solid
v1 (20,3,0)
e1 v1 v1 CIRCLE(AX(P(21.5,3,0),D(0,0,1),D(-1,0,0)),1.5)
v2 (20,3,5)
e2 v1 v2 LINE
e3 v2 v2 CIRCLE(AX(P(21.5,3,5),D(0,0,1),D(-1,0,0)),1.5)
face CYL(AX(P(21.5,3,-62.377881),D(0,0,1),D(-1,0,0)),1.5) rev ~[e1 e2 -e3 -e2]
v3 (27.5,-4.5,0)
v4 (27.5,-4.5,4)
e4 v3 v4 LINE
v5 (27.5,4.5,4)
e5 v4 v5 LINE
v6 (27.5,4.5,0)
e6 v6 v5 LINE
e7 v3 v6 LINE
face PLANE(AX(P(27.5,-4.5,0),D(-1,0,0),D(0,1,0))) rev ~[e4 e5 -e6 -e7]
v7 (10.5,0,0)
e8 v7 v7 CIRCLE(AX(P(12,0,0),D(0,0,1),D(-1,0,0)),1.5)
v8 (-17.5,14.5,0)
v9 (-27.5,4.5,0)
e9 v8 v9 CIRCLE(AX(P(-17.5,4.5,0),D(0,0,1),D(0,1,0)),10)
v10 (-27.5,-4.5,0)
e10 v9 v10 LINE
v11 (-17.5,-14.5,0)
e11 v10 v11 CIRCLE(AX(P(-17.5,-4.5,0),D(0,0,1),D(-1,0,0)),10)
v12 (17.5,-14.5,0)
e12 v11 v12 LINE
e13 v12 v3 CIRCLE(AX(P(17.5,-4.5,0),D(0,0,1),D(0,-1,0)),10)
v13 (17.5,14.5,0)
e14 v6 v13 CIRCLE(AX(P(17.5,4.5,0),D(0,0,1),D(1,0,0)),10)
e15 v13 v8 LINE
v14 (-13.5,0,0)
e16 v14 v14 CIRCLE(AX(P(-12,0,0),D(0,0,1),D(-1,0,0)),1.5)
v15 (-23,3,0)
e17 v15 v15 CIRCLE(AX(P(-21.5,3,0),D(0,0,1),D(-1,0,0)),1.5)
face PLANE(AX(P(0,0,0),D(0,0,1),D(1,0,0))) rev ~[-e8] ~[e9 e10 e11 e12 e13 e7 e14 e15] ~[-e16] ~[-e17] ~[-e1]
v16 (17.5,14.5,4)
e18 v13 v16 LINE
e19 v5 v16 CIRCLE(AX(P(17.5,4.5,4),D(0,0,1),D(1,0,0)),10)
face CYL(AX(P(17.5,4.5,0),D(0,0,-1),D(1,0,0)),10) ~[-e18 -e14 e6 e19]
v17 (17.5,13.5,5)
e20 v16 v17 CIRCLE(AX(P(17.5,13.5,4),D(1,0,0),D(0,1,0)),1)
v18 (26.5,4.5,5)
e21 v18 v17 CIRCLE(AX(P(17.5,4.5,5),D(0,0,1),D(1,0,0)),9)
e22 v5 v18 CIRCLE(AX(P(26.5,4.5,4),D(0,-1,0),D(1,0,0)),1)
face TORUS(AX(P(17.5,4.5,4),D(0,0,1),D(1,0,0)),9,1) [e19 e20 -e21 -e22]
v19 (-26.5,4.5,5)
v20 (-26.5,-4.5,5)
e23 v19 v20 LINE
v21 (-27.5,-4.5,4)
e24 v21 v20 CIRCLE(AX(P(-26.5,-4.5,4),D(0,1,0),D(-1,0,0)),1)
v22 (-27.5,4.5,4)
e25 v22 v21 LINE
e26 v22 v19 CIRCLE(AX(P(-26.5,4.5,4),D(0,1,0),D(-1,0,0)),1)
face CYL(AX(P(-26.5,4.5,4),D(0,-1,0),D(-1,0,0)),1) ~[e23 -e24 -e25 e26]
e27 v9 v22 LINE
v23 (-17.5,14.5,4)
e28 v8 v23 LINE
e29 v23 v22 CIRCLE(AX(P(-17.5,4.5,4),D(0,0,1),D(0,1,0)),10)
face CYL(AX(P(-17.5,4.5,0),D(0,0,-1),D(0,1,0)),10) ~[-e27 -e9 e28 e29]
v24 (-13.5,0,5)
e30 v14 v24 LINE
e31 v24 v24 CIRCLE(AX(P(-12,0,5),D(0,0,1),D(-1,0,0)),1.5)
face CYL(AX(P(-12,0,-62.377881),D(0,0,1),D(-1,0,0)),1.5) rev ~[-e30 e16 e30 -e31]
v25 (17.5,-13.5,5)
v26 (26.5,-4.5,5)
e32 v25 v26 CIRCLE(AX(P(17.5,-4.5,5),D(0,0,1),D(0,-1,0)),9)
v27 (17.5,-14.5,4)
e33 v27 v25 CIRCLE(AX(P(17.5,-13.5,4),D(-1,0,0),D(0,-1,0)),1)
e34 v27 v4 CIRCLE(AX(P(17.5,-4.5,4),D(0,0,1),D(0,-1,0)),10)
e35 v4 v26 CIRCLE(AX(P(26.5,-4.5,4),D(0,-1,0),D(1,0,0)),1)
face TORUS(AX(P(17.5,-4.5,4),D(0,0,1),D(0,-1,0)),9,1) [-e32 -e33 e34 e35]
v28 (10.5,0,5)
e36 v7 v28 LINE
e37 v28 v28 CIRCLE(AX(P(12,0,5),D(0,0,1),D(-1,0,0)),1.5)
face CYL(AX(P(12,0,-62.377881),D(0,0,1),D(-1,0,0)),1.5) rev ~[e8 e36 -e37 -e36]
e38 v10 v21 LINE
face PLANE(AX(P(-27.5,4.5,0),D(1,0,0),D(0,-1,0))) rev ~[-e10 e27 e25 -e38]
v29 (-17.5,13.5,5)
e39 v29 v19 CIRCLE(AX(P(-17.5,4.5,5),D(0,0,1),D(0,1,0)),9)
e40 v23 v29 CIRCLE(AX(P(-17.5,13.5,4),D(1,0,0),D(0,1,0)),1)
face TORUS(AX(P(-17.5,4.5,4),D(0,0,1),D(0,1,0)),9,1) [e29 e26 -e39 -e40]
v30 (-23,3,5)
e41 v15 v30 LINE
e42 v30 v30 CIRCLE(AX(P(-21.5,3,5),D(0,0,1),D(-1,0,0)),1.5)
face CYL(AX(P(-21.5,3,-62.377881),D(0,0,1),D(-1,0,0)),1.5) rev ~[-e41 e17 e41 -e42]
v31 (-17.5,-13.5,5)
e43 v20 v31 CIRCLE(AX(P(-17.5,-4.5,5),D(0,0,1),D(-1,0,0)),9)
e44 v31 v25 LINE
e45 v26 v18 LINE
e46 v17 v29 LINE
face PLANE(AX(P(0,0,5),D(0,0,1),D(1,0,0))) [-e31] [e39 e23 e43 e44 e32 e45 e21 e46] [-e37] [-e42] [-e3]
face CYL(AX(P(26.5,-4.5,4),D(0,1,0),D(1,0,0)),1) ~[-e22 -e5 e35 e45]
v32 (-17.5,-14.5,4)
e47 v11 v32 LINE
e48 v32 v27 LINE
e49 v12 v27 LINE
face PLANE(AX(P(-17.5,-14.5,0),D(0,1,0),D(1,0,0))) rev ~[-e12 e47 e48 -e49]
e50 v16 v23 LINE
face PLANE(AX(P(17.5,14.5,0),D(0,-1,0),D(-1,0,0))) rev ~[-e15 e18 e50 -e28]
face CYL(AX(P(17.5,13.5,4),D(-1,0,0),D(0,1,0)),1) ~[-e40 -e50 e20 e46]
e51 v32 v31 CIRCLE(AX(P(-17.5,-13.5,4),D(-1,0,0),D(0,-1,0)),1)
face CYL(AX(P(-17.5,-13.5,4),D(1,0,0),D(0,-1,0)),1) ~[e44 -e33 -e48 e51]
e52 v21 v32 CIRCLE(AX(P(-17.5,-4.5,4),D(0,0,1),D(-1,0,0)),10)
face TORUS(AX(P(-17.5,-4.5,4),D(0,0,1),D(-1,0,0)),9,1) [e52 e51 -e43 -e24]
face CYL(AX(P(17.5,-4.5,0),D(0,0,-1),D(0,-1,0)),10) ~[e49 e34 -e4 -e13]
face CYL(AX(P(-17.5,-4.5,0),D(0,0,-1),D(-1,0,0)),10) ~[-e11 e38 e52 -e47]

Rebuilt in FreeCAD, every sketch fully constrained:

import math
import FreeCAD as App
import Part
import Sketcher


def edges_at(feature, points):
    """Names of the edges that pass closest to the given points."""
    edges = feature.Shape.Edges
    near = lambda p: min(range(len(edges)), key=lambda i: edges[i].distToShape(Part.Vertex(*p))[0])
    return sorted({f"Edge{near(p) + 1}" for p in points})

doc = App.newDocument("Part")
body = doc.addObject("PartDesign::Body", "Body")

# Sketch on XY plane
sketch1 = body.newObject("Sketcher::SketchObject", "Sketch")
sketch1.AttachmentSupport = (doc.getObject("XY_Plane"), [""])
sketch1.MapMode = "FlatFace"
sketch1.addGeometry([
    Part.LineSegment(App.Vector(18, 14, 0), App.Vector(-18, 14, 0)),  # 0
    Part.ArcOfCircle(Part.Circle(App.Vector(-18, 4, 0), App.Vector(0, 0, 1), 10), math.radians(90), math.radians(180)),  # 1
    Part.LineSegment(App.Vector(-28, 4, 0), App.Vector(-28, -4, 0)),  # 2
    Part.ArcOfCircle(Part.Circle(App.Vector(-18, -4, 0), App.Vector(0, 0, 1), 10), math.radians(180), math.radians(270)),  # 3
    Part.LineSegment(App.Vector(-18, -14, 0), App.Vector(18, -14, 0)),  # 4
    Part.ArcOfCircle(Part.Circle(App.Vector(18, -4, 0), App.Vector(0, 0, 1), 10), math.radians(-90), math.radians(0)),  # 5
    Part.LineSegment(App.Vector(28, -4, 0), App.Vector(28, 4, 0)),  # 6
    Part.ArcOfCircle(Part.Circle(App.Vector(18, 4, 0), App.Vector(0, 0, 1), 10), math.radians(0), math.radians(90)),  # 7
], False)
sketch1.addConstraint([
    Sketcher.Constraint("Tangent", 0, 2, 1, 1),
    Sketcher.Constraint("Tangent", 1, 2, 2, 1),
    Sketcher.Constraint("Tangent", 2, 2, 3, 1),
    Sketcher.Constraint("Tangent", 3, 2, 4, 1),
    Sketcher.Constraint("Tangent", 4, 2, 5, 1),
    Sketcher.Constraint("Tangent", 5, 2, 6, 1),
    Sketcher.Constraint("Tangent", 6, 2, 7, 1),
    Sketcher.Constraint("Tangent", 7, 2, 0, 1),
    Sketcher.Constraint("Horizontal", 0),
    Sketcher.Constraint("Vertical", 2),
    Sketcher.Constraint("Horizontal", 4),
    Sketcher.Constraint("Vertical", 6),
    Sketcher.Constraint("Equal", 1, 3),
    Sketcher.Constraint("Equal", 3, 5),
    Sketcher.Constraint("Equal", 5, 7),
    Sketcher.Constraint("Symmetric", 1, 3, 5, 3, -1, 1),
    Sketcher.Constraint("Radius", 1, 10.0),
    Sketcher.Constraint("DistanceX", 0, 2, 0, 1, 35.0),
    Sketcher.Constraint("DistanceY", 2, 2, 2, 1, 9.0),
])
pad1 = body.newObject("PartDesign::Pad", "Pad")
pad1.Profile = sketch1
pad1.Length = 5
doc.recompute()

fillet = body.newObject("PartDesign::Fillet", "Fillet")
fillet.Base = (pad1, edges_at(pad1, [
    (0, 14.5, 5),
    (-24.571, 11.571, 5),
    (-27.5, 0, 5),
    (-24.571, -11.571, 5),
    (0, -14.5, 5),
    (24.571, -11.571, 5),
    (27.5, 0, 5),
    (24.571, 11.571, 5),
]))
fillet.Radius = 1

# Sketch on XY plane
sketch2 = body.newObject("Sketcher::SketchObject", "Sketch001")
sketch2.AttachmentSupport = (doc.getObject("XY_Plane"), [""])
sketch2.MapMode = "FlatFace"
sketch2.addGeometry([
    Part.Circle(App.Vector(-21.5, 3, 0), App.Vector(0, 0, 1), 1.5),
    Part.Circle(App.Vector(21.5, 3, 0), App.Vector(0, 0, 1), 1.5),
], False)
sketch2.addConstraint([
    Sketcher.Constraint("Equal", 0, 1),
    Sketcher.Constraint("Symmetric", 0, 3, 1, 3, -2),
    Sketcher.Constraint("Diameter", 0, 3.0),
    Sketcher.Constraint("DistanceY", -1, 1, 0, 3, 3.0),
    Sketcher.Constraint("DistanceX", 0, 3, 1, 3, 43.0),
])
doc.recompute()
hole = body.newObject("PartDesign::Hole", "Hole")
hole.Profile = sketch2
hole.ThreadType = "None"
hole.Diameter = 3
hole.DepthType = "ThroughAll"
hole.Reversed = True

# Sketch on XY plane
sketch3 = body.newObject("Sketcher::SketchObject", "Sketch002")
sketch3.AttachmentSupport = (doc.getObject("XY_Plane"), [""])
sketch3.MapMode = "FlatFace"
sketch3.addGeometry([
    Part.Circle(App.Vector(-12, 0, 0), App.Vector(0, 0, 1), 1.5),
    Part.Circle(App.Vector(12, 0, 0), App.Vector(0, 0, 1), 1.5),
], False)
sketch3.addConstraint([
    Sketcher.Constraint("Equal", 0, 1),
    Sketcher.Constraint("Symmetric", 0, 3, 1, 3, -1, 1),
    Sketcher.Constraint("PointOnObject", 0, 3, -1),
    Sketcher.Constraint("Diameter", 0, 3.0),
    Sketcher.Constraint("DistanceX", 0, 3, -1, 1, 12.0),
])
doc.recompute()
hole2 = body.newObject("PartDesign::Hole", "Hole001")
hole2.Profile = sketch3
hole2.ThreadType = "None"
hole2.Diameter = 3
hole2.DepthType = "ThroughAll"
hole2.Reversed = True

doc.recompute()
